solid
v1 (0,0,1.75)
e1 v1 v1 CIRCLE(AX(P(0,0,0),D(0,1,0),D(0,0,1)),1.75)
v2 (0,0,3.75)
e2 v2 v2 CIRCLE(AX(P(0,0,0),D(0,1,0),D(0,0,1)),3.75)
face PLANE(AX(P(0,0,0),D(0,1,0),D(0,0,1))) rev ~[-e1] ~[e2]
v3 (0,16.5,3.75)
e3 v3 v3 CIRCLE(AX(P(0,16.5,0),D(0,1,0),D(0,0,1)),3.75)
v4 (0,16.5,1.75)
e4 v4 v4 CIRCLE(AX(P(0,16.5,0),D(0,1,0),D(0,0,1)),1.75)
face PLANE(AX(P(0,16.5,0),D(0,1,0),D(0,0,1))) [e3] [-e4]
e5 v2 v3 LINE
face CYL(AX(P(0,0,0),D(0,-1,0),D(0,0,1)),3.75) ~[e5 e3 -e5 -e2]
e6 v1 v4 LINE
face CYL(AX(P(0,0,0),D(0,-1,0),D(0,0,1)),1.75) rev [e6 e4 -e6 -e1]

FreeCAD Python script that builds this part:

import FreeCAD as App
import Part
import Sketcher

doc = App.newDocument("Part")
body = doc.addObject("PartDesign::Body", "Body")

# Sketch on XZ plane
sketch1 = body.newObject("Sketcher::SketchObject", "Sketch")
sketch1.AttachmentSupport = (doc.getObject("XZ_Plane"), [""])
sketch1.MapMode = "FlatFace"
sketch1.addGeometry([
    Part.Circle(App.Vector(0, 0, 0), App.Vector(0, 0, 1), 3.8),
    Part.Circle(App.Vector(0, 0, 0), App.Vector(0, 0, 1), 1.8),
], False)
sketch1.addConstraint([
    Sketcher.Constraint("Coincident", 0, 3, -1, 1),
    Sketcher.Constraint("Coincident", 1, 3, -1, 1),
    Sketcher.Constraint("Diameter", 0, 7.5),
    Sketcher.Constraint("Diameter", 1, 3.5),
])
pad1 = body.newObject("PartDesign::Pad", "Pad")
pad1.Profile = sketch1
pad1.Length = 16.5
pad1.Reversed = True

doc.recompute()
